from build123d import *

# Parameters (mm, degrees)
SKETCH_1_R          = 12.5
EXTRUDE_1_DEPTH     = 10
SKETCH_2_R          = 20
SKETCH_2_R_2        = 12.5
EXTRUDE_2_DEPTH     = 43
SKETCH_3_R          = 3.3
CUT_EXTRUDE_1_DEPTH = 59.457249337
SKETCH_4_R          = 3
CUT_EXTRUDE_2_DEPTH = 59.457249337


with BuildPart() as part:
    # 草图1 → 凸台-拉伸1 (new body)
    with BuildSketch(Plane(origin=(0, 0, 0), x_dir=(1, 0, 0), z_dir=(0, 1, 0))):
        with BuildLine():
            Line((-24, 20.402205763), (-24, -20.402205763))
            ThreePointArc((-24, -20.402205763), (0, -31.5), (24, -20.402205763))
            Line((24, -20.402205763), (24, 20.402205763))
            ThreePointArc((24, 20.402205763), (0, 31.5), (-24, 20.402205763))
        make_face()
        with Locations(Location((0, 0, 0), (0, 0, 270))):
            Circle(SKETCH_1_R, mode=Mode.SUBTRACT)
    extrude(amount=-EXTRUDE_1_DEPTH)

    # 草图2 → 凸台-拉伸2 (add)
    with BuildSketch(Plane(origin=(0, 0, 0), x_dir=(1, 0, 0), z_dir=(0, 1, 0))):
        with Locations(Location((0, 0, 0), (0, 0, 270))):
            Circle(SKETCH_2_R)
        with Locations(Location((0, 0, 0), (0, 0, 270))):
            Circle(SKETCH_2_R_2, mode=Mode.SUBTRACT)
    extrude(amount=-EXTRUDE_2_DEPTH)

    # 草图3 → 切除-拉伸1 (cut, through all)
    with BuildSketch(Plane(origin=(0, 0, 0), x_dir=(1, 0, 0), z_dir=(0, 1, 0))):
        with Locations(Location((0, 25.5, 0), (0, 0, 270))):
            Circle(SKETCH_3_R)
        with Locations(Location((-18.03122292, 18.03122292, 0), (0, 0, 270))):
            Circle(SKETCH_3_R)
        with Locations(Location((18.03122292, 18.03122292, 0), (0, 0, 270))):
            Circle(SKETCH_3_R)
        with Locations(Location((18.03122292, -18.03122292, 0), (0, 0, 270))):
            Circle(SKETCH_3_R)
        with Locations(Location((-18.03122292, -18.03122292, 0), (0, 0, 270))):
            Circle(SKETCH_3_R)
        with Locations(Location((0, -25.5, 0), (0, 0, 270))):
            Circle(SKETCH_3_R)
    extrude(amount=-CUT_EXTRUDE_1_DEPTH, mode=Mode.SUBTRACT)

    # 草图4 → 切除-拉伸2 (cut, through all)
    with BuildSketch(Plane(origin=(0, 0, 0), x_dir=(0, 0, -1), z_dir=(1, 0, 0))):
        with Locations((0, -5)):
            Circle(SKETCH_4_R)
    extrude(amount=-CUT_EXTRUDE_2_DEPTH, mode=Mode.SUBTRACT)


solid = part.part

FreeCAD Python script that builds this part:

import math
import FreeCAD as App
import Part
import Sketcher
from FreeCAD import Vector

doc = App.newDocument("Part")
body = doc.addObject("PartDesign::Body", "Body")

# Sketch on XZ plane
sketch1 = body.newObject("Sketcher::SketchObject", "Sketch")
sketch1.AttachmentSupport = (doc.getObject("XZ_Plane"), [""])
sketch1.MapMode = "FlatFace"
sketch1.addGeometry([
    Part.LineSegment(Vector(-24, -20, 0), Vector(-24, 20, 0)),  # 0
    Part.ArcOfCircle(Part.Circle(Vector(0, 0, 0), Vector(0, 0, 1), 32), math.radians(40), math.radians(140)),  # 1
    Part.LineSegment(Vector(24, 20, 0), Vector(24, -20, 0)),  # 2
    Part.ArcOfCircle(Part.Circle(Vector(0, 0, 0), Vector(0, 0, 1), 32), math.radians(-140), math.radians(-40)),  # 3
    Part.Circle(Vector(0, 0, 0), Vector(0, 0, 1), 12),  # 4
], False)
sketch1.addConstraint([
    Sketcher.Constraint("Coincident", 0, 2, 1, 2),
    Sketcher.Constraint("Coincident", 1, 1, 2, 1),
    Sketcher.Constraint("Coincident", 2, 2, 3, 2),
    Sketcher.Constraint("Coincident", 3, 1, 0, 1),
    Sketcher.Constraint("Vertical", 0),
    Sketcher.Constraint("Vertical", 2),
    Sketcher.Constraint("Coincident", 1, 3, -1, 1),
    Sketcher.Constraint("Coincident", 3, 3, -1, 1),
    Sketcher.Constraint("Coincident", 4, 3, -1, 1),
    Sketcher.Constraint("Equal", 1, 3),
    Sketcher.Constraint("Horizontal", 0, 2, 1, 1),
    Sketcher.Constraint("Diameter", 4, 25.0),
    Sketcher.Constraint("Radius", 1, 31.5),
    Sketcher.Constraint("DistanceX", 0, 2, -1, 1, 24.0),
])
pad1 = body.newObject("PartDesign::Pad", "Pad")
pad1.Profile = sketch1
pad1.Length = 10

# Sketch on XZ plane
sketch2 = body.newObject("Sketcher::SketchObject", "Sketch001")
sketch2.AttachmentSupport = (doc.getObject("XZ_Plane"), [""])
sketch2.MapMode = "FlatFace"
sketch2.addGeometry([
    Part.Circle(Vector(0, 0, 0), Vector(0, 0, 1), 20),
    Part.Circle(Vector(0, 0, 0), Vector(0, 0, 1), 12),
], False)
sketch2.addConstraint([
    Sketcher.Constraint("Coincident", 0, 3, -1, 1),
    Sketcher.Constraint("Coincident", 1, 3, -1, 1),
    Sketcher.Constraint("Diameter", 0, 40.0),
    Sketcher.Constraint("Diameter", 1, 25.0),
])
pad2 = body.newObject("PartDesign::Pad", "Pad001")
pad2.Profile = sketch2
pad2.Length = 43

# Sketch on XZ plane
sketch3 = body.newObject("Sketcher::SketchObject", "Sketch002")
sketch3.AttachmentSupport = (doc.getObject("XZ_Plane"), [""])
sketch3.MapMode = "FlatFace"
sketch3.addGeometry([
    Part.Circle(Vector(0, -25.5, 0), Vector(0, 0, 1), 3.3),  # 0
    Part.Circle(Vector(-18, -18, 0), Vector(0, 0, 1), 3.3),  # 1
    Part.Circle(Vector(18, -18, 0), Vector(0, 0, 1), 3.3),  # 2
    Part.Circle(Vector(18, 18, 0), Vector(0, 0, 1), 3.3),  # 3
    Part.Circle(Vector(-18, 18, 0), Vector(0, 0, 1), 3.3),  # 4
    Part.Circle(Vector(0, 25.5, 0), Vector(0, 0, 1), 3.3),  # 5
], False)
sketch3.addConstraint([
    Sketcher.Constraint("Equal", 0, 1),
    Sketcher.Constraint("Equal", 1, 2),
    Sketcher.Constraint("Equal", 2, 3),
    Sketcher.Constraint("Equal", 3, 4),
    Sketcher.Constraint("Equal", 4, 5),
    Sketcher.Constraint("Symmetric", 1, 3, 3, 3, -1, 1),
    Sketcher.Constraint("Symmetric", 2, 3, 4, 3, -1, 1),
    Sketcher.Constraint("Symmetric", 0, 3, 5, 3, -1, 1),
    Sketcher.Constraint("Symmetric", 1, 3, 2, 3, -2),
    Sketcher.Constraint("PointOnObject", 0, 3, -2),
    Sketcher.Constraint("Diameter", 0, 6.6),
    Sketcher.Constraint("DistanceY", 0, 3, 5, 3, 51.0),
    Sketcher.Constraint("DistanceX", 1, 3, -1, 1, 18.031223),
    Sketcher.Constraint("DistanceY", 1, 3, -1, 1, 18.031223),
])
pocket1 = body.newObject("PartDesign::Pocket", "Pocket")
pocket1.Profile = sketch3
pocket1.Type = "ThroughAll"
pocket1.Reversed = True

# Sketch on YZ plane
sketch4 = body.newObject("Sketcher::SketchObject", "Sketch003")
sketch4.AttachmentSupport = (doc.getObject("YZ_Plane"), [""])
sketch4.MapMode = "FlatFace"
sketch4.addGeometry(Part.Circle(Vector(-5, 0, 0), Vector(0, 0, 1), 3), False)
sketch4.addConstraint([
    Sketcher.Constraint("PointOnObject", 0, 3, -1),
    Sketcher.Constraint("Diameter", 0, 6.0),
    Sketcher.Constraint("DistanceX", 0, 3, -1, 1, 5.0),
])
pocket2 = body.newObject("PartDesign::Pocket", "Pocket001")
pocket2.Profile = sketch4
pocket2.Type = "ThroughAll"

doc.recompute()
